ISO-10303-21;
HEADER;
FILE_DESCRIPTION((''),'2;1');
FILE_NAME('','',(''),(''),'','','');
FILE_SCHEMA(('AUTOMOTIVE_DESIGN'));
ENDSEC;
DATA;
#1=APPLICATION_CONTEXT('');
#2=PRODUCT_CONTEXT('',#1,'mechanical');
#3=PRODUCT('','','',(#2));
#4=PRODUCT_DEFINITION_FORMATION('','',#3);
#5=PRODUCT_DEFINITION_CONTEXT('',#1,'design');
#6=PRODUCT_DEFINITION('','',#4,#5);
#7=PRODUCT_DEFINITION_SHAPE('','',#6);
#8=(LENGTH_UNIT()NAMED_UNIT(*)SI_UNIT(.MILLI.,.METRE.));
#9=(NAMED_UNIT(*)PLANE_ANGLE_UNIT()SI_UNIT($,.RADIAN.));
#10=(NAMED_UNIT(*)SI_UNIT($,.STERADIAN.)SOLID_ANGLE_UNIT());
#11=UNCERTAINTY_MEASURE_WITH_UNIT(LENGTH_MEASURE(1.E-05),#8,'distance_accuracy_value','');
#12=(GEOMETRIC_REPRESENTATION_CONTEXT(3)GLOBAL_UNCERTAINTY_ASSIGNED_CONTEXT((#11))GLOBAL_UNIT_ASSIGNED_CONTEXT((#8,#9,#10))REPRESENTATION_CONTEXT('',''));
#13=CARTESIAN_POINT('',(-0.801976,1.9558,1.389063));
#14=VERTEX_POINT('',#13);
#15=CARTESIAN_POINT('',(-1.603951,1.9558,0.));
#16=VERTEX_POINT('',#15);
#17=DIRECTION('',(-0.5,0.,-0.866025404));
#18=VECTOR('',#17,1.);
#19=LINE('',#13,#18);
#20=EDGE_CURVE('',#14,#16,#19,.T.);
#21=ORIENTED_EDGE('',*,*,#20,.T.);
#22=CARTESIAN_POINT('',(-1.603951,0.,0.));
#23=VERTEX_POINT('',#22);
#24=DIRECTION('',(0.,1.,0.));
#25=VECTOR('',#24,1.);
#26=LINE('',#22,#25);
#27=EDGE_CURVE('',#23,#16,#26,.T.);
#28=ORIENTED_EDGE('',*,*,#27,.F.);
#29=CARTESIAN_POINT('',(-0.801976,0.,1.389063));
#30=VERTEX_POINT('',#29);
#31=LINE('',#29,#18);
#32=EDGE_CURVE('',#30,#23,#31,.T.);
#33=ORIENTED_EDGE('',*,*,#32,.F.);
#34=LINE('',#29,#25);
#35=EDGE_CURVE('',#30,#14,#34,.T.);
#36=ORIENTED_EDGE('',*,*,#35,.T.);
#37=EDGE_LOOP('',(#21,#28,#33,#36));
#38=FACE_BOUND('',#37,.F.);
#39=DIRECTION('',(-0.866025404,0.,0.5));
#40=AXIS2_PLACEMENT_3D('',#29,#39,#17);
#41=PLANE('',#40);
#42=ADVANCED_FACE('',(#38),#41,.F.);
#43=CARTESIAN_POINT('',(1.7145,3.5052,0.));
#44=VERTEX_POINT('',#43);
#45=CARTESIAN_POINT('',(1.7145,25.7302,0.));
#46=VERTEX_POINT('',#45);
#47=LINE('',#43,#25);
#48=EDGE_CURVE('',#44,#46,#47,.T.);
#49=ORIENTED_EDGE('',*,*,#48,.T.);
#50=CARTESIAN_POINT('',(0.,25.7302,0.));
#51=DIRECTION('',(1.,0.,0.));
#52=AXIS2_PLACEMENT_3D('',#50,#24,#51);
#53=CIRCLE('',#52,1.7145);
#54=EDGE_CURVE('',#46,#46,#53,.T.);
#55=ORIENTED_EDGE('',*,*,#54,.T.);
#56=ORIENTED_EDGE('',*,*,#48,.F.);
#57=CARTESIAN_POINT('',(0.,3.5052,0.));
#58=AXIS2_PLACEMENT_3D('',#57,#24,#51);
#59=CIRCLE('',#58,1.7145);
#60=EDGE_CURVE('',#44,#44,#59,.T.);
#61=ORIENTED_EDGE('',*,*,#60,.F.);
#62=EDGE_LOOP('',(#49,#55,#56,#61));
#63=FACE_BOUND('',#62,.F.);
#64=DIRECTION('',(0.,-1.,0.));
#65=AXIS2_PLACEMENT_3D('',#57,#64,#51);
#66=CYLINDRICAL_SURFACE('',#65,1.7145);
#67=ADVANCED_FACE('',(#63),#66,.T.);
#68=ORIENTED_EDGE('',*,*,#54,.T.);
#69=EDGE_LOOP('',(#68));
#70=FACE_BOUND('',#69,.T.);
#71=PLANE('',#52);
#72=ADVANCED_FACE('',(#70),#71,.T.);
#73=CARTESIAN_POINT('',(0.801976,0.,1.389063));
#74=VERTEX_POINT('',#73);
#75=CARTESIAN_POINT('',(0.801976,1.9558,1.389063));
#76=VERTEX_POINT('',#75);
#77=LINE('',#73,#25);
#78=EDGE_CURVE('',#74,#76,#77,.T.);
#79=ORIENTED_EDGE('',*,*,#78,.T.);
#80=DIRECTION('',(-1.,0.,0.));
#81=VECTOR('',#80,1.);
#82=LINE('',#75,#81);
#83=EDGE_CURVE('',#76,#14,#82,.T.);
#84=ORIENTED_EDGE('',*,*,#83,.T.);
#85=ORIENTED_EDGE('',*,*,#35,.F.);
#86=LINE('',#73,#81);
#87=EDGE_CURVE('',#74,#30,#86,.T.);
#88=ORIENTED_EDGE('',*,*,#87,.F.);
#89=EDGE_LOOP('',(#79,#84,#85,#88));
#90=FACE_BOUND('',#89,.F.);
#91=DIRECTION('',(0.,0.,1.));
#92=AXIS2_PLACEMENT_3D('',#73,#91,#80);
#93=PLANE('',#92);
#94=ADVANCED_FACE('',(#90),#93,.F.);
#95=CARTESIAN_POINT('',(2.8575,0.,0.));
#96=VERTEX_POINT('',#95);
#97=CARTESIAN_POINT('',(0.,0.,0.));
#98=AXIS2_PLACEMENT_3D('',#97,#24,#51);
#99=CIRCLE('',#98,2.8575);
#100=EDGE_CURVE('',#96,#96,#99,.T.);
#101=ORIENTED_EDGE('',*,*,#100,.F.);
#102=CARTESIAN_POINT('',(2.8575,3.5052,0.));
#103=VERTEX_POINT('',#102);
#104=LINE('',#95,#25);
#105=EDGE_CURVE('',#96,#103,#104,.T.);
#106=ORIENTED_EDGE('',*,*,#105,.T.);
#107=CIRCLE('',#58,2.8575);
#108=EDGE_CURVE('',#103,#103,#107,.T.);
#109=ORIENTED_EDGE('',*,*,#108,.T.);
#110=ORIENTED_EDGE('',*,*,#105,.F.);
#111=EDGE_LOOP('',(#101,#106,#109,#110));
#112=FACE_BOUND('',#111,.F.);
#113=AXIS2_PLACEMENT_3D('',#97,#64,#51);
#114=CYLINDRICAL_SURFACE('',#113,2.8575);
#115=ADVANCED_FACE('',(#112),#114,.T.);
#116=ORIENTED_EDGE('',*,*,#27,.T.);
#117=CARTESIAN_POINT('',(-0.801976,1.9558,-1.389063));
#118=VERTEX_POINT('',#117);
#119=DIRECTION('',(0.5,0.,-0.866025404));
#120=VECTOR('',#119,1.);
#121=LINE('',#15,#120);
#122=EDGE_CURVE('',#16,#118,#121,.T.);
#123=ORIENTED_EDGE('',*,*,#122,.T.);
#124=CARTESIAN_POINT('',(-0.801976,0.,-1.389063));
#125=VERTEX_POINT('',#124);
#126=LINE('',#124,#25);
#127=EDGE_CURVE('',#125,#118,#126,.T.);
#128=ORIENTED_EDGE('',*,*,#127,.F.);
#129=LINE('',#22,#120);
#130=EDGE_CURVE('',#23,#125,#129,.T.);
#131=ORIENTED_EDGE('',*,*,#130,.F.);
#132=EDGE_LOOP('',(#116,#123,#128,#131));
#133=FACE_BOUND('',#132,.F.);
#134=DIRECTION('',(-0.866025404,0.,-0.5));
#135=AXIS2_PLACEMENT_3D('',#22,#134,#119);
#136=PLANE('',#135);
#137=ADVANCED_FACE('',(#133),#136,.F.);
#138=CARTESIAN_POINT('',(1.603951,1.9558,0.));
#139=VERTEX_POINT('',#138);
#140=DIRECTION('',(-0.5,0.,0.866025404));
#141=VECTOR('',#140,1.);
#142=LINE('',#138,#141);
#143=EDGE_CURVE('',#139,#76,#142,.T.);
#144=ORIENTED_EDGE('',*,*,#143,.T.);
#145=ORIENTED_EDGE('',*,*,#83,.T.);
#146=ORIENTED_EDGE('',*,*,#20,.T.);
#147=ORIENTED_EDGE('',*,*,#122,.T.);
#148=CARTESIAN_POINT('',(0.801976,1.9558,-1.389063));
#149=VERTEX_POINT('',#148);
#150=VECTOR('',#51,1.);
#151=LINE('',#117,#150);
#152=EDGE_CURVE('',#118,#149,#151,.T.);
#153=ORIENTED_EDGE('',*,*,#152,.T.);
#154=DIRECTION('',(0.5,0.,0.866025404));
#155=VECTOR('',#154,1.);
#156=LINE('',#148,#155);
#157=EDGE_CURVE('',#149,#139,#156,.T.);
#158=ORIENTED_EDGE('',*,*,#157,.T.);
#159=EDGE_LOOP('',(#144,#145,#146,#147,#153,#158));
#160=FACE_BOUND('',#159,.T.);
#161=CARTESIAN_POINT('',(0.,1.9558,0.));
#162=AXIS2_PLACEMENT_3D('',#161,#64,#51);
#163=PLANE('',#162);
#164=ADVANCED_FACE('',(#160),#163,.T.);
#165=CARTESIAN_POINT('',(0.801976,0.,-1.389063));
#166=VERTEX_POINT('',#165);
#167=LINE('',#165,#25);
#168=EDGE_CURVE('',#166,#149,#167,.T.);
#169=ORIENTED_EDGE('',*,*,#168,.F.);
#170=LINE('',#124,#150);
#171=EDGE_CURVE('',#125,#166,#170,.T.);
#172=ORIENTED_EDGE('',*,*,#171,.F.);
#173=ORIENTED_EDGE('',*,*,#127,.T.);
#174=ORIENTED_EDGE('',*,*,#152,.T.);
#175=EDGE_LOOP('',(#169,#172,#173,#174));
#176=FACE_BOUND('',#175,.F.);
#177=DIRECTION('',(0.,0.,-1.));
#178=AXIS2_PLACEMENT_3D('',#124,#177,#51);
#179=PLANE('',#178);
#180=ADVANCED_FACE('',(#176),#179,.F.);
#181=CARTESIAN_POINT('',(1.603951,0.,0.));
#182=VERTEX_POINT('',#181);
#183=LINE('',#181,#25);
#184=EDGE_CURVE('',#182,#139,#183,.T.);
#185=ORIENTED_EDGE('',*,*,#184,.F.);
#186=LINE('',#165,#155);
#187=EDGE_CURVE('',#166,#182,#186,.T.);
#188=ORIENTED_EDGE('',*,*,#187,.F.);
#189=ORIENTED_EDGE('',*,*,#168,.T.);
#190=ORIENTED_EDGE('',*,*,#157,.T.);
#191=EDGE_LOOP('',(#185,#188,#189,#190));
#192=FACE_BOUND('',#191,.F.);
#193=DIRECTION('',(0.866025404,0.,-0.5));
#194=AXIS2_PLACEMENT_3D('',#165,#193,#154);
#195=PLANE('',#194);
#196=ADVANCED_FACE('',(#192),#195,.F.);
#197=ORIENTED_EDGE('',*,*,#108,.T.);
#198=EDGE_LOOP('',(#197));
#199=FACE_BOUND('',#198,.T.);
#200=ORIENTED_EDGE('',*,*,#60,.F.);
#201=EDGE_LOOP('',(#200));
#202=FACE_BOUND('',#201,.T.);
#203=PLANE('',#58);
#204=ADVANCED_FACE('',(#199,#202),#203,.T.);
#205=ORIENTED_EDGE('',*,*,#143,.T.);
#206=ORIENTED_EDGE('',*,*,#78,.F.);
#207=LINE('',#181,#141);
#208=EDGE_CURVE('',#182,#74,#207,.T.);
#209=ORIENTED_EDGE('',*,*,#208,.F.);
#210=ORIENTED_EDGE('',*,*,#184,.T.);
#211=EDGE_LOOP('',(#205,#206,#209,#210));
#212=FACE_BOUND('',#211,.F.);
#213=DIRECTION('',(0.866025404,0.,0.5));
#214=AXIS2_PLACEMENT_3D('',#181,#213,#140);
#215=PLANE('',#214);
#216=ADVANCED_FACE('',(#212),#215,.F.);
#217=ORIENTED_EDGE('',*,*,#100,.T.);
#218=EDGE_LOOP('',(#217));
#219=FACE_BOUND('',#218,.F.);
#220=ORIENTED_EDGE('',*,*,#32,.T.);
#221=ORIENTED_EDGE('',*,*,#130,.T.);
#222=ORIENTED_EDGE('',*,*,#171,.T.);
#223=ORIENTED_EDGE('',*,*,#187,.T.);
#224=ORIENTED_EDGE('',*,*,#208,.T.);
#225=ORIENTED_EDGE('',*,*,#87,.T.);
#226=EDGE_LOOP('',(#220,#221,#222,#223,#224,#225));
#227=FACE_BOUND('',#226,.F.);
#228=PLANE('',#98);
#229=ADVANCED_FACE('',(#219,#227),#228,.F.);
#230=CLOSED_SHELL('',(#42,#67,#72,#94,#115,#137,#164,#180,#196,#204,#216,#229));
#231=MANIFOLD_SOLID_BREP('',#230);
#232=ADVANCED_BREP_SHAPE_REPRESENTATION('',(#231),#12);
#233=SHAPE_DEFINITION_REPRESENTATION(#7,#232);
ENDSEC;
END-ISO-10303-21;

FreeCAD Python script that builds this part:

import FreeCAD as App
import Part
import Sketcher
Q = App.Units.Quantity

doc = App.newDocument("Part")
params = doc.addObject("Spreadsheet::Sheet", "Params")
for row, (alias, value) in enumerate([
    ("sketch1_diameter", "0.225 in"),
    ("pad1_length", "0.138 in"),
    ("pocket1_length", "0.077 in"),
    ("sketch3_diameter", "0.135 in"),
    ("pad2_length", "0.875 in"),
], start=1):
    params.set(f"A{row}", alias)
    params.set(f"B{row}", "=" + value)
    params.setAlias(f"B{row}", alias)

body = doc.addObject("PartDesign::Body", "Body")

sketch1 = body.newObject("Sketcher::SketchObject", "Sketch")
sketch1.AttachmentSupport = (doc.getObject("XZ_Plane"), [""])
sketch1.MapMode = "FlatFace"
sketch1.addGeometry(Part.Circle(App.Vector(0, 0, 0), App.Vector(0, 0, 1), 2.9), False)
sketch1.addConstraint(Sketcher.Constraint("Coincident", 0, 3, -1, 1))
sketch1.addConstraint(Sketcher.Constraint("Diameter", 0, Q("0.225 in")))
sketch1.setExpression("Constraints[1]", "Params.sketch1_diameter")
pad1 = body.newObject("PartDesign::Pad", "Pad")
pad1.Profile = sketch1
pad1.setExpression("Length", "Params.pad1_length")
pad1.Reversed = True

sketch2 = body.newObject("Sketcher::SketchObject", "Sketch001")
sketch2.AttachmentSupport = (doc.getObject("XZ_Plane"), [""])
sketch2.MapMode = "FlatFace"
sketch2.addGeometry(Part.LineSegment(App.Vector(1.6, 0, 0), App.Vector(0.8, 1.4, 0)), False)
sketch2.addGeometry(Part.LineSegment(App.Vector(0.8, 1.4, 0), App.Vector(-0.8, 1.4, 0)), False)
sketch2.addGeometry(Part.LineSegment(App.Vector(-0.8, 1.4, 0), App.Vector(-1.6, 0, 0)), False)
sketch2.addGeometry(Part.LineSegment(App.Vector(-1.6, 0, 0), App.Vector(-0.8, -1.4, 0)), False)
sketch2.addGeometry(Part.LineSegment(App.Vector(-0.8, -1.4, 0), App.Vector(0.8, -1.4, 0)), False)
sketch2.addGeometry(Part.LineSegment(App.Vector(0.8, -1.4, 0), App.Vector(1.6, 0, 0)), False)
sketch2.addConstraint(Sketcher.Constraint("Coincident", 0, 2, 1, 1))
sketch2.addConstraint(Sketcher.Constraint("Coincident", 1, 2, 2, 1))
sketch2.addConstraint(Sketcher.Constraint("Coincident", 2, 2, 3, 1))
sketch2.addConstraint(Sketcher.Constraint("Coincident", 3, 2, 4, 1))
sketch2.addConstraint(Sketcher.Constraint("Coincident", 4, 2, 5, 1))
sketch2.addConstraint(Sketcher.Constraint("Coincident", 5, 2, 0, 1))
sketch2.addConstraint(Sketcher.Constraint("Horizontal", 1))
sketch2.addConstraint(Sketcher.Constraint("Horizontal", 4))
sketch2.addConstraint(Sketcher.Constraint("Symmetric", 0, 2, 3, 2, -1, 1))
sketch2.addConstraint(Sketcher.Constraint("Symmetric", 2, 2, 5, 2, -1, 1))
sketch2.addConstraint(Sketcher.Constraint("PointOnObject", 2, 2, -1))
sketch2.addConstraint(Sketcher.Constraint("Parallel", 2, 5))
sketch2.addConstraint(Sketcher.Constraint("Vertical", 1, 2, 3, 2))
sketch2.addConstraint(Sketcher.Constraint("Angle", 0, Q("120 deg")))
sketch2.addConstraint(Sketcher.Constraint("DistanceY", 3, 2, 1, 2, Q("0.109375 in")))
sketch2.addConstraint(Sketcher.Constraint("DistanceX", 1, 2, 1, 1, Q("1.603951 mm")))
pocket1 = body.newObject("PartDesign::Pocket", "Pocket")
pocket1.Profile = sketch2
pocket1.setExpression("Length", "Params.pocket1_length")

sketch3 = body.newObject("Sketcher::SketchObject", "Sketch002")
sketch3.AttachmentSupport = (doc.getObject("XZ_Plane"), [""])
sketch3.MapMode = "FlatFace"
sketch3.AttachmentOffset = App.Placement(App.Vector(0, 0, -0.138 * 25.4), App.Rotation())
sketch3.addGeometry(Part.Circle(App.Vector(0, 0, 0), App.Vector(0, 0, 1), 1.7), False)
sketch3.addConstraint(Sketcher.Constraint("Coincident", 0, 3, -1, 1))
sketch3.addConstraint(Sketcher.Constraint("Diameter", 0, Q("0.135 in")))
sketch3.setExpression("Constraints[1]", "Params.sketch3_diameter")
pad2 = body.newObject("PartDesign::Pad", "Pad001")
pad2.Profile = sketch3
pad2.setExpression("Length", "Params.pad2_length")
pad2.Reversed = True

doc.recompute()
